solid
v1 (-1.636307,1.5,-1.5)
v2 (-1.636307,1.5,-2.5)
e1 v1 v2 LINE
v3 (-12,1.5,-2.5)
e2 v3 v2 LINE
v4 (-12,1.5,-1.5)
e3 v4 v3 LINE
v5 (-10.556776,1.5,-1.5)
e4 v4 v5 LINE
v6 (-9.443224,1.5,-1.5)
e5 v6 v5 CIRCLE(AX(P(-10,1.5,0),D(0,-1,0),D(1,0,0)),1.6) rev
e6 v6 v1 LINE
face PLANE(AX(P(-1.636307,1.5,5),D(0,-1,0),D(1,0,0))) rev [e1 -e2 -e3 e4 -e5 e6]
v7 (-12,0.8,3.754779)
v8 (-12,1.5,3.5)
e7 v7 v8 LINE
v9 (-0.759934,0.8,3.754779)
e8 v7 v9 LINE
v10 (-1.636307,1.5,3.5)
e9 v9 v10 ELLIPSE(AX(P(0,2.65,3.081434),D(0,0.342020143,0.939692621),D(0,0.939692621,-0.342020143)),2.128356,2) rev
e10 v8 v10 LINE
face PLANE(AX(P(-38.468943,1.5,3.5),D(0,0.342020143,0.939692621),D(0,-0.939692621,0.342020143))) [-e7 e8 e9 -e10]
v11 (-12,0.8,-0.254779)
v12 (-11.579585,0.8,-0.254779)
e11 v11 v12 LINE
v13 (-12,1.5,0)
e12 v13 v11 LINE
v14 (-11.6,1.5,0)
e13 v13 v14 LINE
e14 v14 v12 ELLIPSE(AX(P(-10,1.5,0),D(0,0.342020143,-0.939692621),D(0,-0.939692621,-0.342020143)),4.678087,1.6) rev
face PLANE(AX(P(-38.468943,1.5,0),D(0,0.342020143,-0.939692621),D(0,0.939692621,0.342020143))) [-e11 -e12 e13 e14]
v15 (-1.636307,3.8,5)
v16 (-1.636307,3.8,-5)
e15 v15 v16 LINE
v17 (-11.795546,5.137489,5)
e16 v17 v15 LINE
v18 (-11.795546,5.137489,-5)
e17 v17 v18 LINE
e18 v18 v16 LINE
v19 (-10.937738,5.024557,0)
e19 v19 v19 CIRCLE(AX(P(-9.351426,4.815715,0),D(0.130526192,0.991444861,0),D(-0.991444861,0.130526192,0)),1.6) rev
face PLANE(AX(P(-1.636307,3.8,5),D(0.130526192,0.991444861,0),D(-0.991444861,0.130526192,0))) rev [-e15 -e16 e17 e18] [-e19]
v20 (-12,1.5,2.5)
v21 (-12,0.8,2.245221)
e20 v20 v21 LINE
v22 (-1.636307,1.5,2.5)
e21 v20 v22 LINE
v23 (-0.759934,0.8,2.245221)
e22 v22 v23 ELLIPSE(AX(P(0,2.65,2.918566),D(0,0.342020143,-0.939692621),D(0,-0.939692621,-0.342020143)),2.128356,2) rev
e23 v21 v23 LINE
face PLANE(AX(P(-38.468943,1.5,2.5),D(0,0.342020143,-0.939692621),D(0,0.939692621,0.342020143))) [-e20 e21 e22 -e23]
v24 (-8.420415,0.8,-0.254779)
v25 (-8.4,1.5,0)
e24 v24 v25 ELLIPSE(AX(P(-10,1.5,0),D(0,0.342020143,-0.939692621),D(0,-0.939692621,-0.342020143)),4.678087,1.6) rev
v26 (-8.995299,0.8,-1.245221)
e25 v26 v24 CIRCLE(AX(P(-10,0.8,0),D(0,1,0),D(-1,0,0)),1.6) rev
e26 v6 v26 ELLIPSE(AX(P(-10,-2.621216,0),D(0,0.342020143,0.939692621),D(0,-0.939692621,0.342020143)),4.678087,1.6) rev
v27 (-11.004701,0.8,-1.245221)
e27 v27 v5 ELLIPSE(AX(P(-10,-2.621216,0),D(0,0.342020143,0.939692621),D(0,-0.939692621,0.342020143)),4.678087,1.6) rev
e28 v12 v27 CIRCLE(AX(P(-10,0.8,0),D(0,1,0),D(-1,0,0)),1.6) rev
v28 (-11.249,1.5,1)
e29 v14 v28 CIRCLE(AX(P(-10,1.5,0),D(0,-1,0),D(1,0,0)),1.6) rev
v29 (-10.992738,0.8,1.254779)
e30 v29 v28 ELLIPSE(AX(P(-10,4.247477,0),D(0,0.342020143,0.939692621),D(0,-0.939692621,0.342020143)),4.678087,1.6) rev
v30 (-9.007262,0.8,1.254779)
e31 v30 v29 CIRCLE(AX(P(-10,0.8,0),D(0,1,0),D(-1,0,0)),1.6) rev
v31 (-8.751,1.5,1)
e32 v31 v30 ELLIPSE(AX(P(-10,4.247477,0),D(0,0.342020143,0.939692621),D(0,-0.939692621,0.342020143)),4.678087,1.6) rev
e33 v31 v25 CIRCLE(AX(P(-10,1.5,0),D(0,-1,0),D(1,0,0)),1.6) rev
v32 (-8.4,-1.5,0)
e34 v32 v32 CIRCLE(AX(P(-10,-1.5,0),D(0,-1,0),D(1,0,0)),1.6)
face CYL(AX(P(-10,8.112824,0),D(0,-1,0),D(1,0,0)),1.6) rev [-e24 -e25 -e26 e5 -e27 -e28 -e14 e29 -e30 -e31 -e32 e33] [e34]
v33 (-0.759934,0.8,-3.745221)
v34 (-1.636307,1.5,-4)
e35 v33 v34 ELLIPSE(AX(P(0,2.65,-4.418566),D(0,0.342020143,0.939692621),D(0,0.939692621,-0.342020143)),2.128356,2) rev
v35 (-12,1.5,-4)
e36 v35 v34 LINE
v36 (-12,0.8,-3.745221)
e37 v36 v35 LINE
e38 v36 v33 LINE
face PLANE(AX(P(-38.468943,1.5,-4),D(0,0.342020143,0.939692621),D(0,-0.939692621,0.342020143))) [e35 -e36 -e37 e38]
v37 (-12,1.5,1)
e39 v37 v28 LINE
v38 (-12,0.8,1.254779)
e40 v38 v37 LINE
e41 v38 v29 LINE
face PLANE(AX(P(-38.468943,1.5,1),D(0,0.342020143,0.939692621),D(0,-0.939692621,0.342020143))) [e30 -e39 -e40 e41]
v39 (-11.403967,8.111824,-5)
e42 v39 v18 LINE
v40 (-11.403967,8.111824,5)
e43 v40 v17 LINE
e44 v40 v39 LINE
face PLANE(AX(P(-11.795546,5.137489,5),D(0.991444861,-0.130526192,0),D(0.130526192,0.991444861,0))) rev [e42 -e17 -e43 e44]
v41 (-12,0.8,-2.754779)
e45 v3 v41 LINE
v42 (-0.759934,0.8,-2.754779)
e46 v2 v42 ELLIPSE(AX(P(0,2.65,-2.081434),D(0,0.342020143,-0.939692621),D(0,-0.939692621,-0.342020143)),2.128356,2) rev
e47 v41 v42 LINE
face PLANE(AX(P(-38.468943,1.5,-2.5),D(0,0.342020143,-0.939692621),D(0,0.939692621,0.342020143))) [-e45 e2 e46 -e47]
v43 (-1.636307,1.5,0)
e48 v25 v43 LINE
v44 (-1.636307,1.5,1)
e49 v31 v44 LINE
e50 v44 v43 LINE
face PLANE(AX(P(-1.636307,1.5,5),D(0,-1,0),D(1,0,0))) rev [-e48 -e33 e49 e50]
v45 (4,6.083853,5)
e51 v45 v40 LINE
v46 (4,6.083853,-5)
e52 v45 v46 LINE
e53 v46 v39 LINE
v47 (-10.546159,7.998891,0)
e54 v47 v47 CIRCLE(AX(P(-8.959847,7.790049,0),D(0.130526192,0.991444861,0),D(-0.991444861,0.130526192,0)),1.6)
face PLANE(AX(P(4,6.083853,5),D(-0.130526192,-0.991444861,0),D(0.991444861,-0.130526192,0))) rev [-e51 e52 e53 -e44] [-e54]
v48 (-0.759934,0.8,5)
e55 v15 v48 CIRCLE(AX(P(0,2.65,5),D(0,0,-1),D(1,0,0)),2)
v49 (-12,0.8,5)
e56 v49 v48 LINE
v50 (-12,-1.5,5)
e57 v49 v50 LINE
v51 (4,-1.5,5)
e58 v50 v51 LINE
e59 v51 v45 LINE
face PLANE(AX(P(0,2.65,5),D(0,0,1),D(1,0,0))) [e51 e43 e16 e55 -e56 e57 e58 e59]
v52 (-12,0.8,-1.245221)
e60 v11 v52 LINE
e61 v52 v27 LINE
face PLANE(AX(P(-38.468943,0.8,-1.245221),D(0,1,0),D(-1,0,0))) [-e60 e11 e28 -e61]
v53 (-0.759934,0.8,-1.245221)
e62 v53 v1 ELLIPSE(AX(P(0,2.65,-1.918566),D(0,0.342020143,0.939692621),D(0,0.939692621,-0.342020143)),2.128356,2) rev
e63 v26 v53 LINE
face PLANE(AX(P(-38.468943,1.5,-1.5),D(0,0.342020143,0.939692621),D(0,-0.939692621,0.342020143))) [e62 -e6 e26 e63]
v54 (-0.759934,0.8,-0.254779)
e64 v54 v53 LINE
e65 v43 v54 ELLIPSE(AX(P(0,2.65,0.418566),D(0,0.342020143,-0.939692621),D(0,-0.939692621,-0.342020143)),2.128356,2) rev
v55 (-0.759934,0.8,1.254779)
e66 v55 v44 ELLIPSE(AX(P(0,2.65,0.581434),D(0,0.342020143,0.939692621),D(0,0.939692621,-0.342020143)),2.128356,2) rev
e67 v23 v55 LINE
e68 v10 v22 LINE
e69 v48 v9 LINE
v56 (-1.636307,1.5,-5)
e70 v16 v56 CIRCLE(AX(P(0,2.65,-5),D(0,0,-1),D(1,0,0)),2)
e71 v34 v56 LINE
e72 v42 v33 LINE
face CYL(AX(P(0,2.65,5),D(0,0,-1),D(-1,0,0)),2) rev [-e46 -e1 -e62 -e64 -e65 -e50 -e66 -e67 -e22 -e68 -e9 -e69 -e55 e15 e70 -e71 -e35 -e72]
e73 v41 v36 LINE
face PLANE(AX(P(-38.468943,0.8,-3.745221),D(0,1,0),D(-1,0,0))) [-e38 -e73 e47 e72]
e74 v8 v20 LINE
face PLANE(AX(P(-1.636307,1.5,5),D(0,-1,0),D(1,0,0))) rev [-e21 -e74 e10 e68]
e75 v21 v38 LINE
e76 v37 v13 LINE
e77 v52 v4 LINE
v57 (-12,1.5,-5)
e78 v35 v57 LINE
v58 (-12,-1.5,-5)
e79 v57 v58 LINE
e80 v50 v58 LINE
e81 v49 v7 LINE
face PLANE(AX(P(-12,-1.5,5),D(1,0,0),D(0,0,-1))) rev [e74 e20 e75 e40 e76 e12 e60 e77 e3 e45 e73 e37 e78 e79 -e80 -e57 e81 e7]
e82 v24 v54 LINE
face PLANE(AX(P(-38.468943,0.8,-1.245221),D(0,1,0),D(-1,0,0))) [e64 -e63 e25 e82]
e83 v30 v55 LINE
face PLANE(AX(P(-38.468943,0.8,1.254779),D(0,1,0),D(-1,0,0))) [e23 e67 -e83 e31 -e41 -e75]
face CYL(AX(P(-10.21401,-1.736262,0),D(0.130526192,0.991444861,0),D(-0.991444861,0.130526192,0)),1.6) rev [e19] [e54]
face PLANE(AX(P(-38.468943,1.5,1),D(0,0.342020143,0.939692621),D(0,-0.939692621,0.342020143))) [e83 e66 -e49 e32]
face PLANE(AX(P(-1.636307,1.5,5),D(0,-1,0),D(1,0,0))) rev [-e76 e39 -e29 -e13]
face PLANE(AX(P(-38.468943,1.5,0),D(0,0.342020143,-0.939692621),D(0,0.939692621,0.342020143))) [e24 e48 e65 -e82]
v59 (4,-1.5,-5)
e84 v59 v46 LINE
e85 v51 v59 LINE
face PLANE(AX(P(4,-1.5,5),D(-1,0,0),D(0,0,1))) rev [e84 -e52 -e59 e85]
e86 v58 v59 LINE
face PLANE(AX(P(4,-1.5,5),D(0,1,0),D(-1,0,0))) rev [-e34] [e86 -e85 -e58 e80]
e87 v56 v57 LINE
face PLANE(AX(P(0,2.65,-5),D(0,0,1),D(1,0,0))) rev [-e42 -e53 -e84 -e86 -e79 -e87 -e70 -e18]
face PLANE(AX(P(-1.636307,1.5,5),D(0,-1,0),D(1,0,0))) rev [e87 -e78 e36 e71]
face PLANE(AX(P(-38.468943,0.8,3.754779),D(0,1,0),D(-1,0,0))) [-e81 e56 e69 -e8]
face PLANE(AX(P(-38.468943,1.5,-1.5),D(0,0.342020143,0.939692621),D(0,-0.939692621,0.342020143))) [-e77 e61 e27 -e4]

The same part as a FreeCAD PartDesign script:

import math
import FreeCAD as App
import Part
import Sketcher

V = App.Vector
Q = App.Units.Quantity

doc = App.newDocument("Part")
body = doc.addObject("PartDesign::Body", "Body")

# Sketch on XY plane
sketch1 = body.newObject("Sketcher::SketchObject", "Sketch")
sketch1.AttachmentSupport = (doc.getObject("XY_Plane"), [""])
sketch1.MapMode = "FlatFace"
sketch1.addGeometry([
    Part.LineSegment(V(4, 6.083853, 0), V(-11.403967, 8.111824, 0)),  # 0
    Part.LineSegment(V(-11.403967, 8.111824, 0), V(-11.795546, 5.137489, 0)),  # 1
    Part.LineSegment(V(-11.795546, 5.137489, 0), V(-1.636307, 3.8, 0)),  # 2
    Part.ArcOfCircle(Part.Circle(V(0, 2.65, 0), V(0, 0, 1), 2), math.radians(-144.900368), math.radians(144.900368)),  # 3
    Part.LineSegment(V(-1.636307, 1.5, 0), V(-12, 1.5, 0)),  # 4
    Part.LineSegment(V(-12, 1.5, 0), V(-12, -1.5, 0)),  # 5
    Part.LineSegment(V(-12, -1.5, 0), V(4, -1.5, 0)),  # 6
    Part.LineSegment(V(4, -1.5, 0), V(4, 6.083853, 0)),  # 7
], False)
sketch1.addConstraint([
    Sketcher.Constraint("Coincident", 0, 2, 1, 1),
    Sketcher.Constraint("Coincident", 1, 2, 2, 1),
    Sketcher.Constraint("Coincident", 2, 2, 3, 2),
    Sketcher.Constraint("Coincident", 3, 1, 4, 1),
    Sketcher.Constraint("Coincident", 4, 2, 5, 1),
    Sketcher.Constraint("Coincident", 5, 2, 6, 1),
    Sketcher.Constraint("Coincident", 6, 2, 7, 1),
    Sketcher.Constraint("Coincident", 7, 2, 0, 1),
    Sketcher.Constraint("Horizontal", 4),
    Sketcher.Constraint("Vertical", 5),
    Sketcher.Constraint("Horizontal", 6),
    Sketcher.Constraint("Vertical", 7),
    Sketcher.Constraint("PointOnObject", 3, 3, -2),
    Sketcher.Constraint("Perpendicular", 0, 1),
    Sketcher.Constraint("Perpendicular", 1, 2),
    Sketcher.Constraint("Vertical", 2, 2, 3, 1),
    Sketcher.Constraint("Radius", 3, 2.0),
    Sketcher.Constraint("DistanceX", 6, 1, 6, 2, 16.0),
    Sketcher.Constraint("DistanceY", 5, 2, 5, 1, 3.0),
    Sketcher.Constraint("Distance", 1, 3.0),
    Sketcher.Constraint("DistanceX", 4, 2, -1, 1, 12.0),
    Sketcher.Constraint("Angle", 0, Q("172.5 deg")),
    Sketcher.Constraint("DistanceY", -1, 1, 2, 2, 3.8),
    Sketcher.Constraint("DistanceY", -1, 1, 3, 1, 1.5),
    Sketcher.Constraint("DistanceY", -1, 1, 1, 2, 5.137489),
])
pad1 = body.newObject("PartDesign::Pad", "Pad")
pad1.Profile = sketch1
pad1.Length = 10
pad1.Midplane = True

# Sketch on an angled plane
sketch2 = body.newObject("Sketcher::SketchObject", "Sketch001")
sketch2.Placement = App.Placement(V(0.855457, 6.49784, 0), App.Rotation(V(0.991444861, -0.130526192, 0), V(0, 0, -0.999999999), V(0.130526192, 0.991444861, 0), "ZXY"))
sketch2.addGeometry(Part.Circle(V(-9.9, 0, 0), V(0, 0, 1), 1.6), False)
sketch2.addConstraint([
    Sketcher.Constraint("PointOnObject", 0, 3, -1),
    Sketcher.Constraint("Diameter", 0, 3.2),
    Sketcher.Constraint("DistanceX", 0, 3, -1, 1, 9.9),
])
pocket1 = body.newObject("PartDesign::Pocket", "Pocket")
pocket1.Profile = sketch2
pocket1.Type = "UpToFirst"

# Sketch on XZ plane
sketch3 = body.newObject("Sketcher::SketchObject", "Sketch002")
sketch3.AttachmentSupport = (doc.getObject("XZ_Plane"), [""])
sketch3.MapMode = "FlatFace"
sketch3.AttachmentOffset = App.Placement(V(0, 0, 1.5), App.Rotation())
sketch3.addGeometry(Part.Circle(V(-10, 0, 0), V(0, 0, 1), 1.6), False)
sketch3.addConstraint([
    Sketcher.Constraint("PointOnObject", 0, 3, -1),
    Sketcher.Constraint("Diameter", 0, 3.2),
    Sketcher.Constraint("DistanceX", 0, 3, -1, 1, 10.0),
])
pocket2 = body.newObject("PartDesign::Pocket", "Pocket001")
pocket2.Profile = sketch3
pocket2.Type = "UpToFirst"

# Sketch on YZ plane
sketch4 = body.newObject("Sketcher::SketchObject", "Sketch003")
sketch4.AttachmentSupport = (doc.getObject("YZ_Plane"), [""])
sketch4.MapMode = "FlatFace"
sketch4.AttachmentOffset = App.Placement(V(0, 0, -12), App.Rotation())
sketch4.addGeometry([
    Part.LineSegment(V(1.5, -2.5, 0), V(1.5, -4, 0)),  # 0
    Part.LineSegment(V(1.5, -4, 0), V(0.8, -3.745221, 0)),  # 1
    Part.LineSegment(V(0.8, -3.745221, 0), V(0.8, -2.754779, 0)),  # 2
    Part.LineSegment(V(0.8, -2.754779, 0), V(1.5, -2.5, 0)),  # 3
    Part.LineSegment(V(1.5, 0, 0), V(1.5, -1.5, 0)),  # 4
    Part.LineSegment(V(1.5, -1.5, 0), V(0.8, -1.245221, 0)),  # 5
    Part.LineSegment(V(0.8, -1.245221, 0), V(0.8, -0.254779, 0)),  # 6
    Part.LineSegment(V(0.8, -0.254779, 0), V(1.5, 0, 0)),  # 7
    Part.LineSegment(V(0.8, 3.754779, 0), V(0.8, 5, 0)),  # 8
    Part.LineSegment(V(0.8, 5, 0), V(1.5, 5, 0)),  # 9
    Part.LineSegment(V(1.5, 5, 0), V(1.5, 3.5, 0)),  # 10
    Part.LineSegment(V(1.5, 3.5, 0), V(0.8, 3.754779, 0)),  # 11
    Part.LineSegment(V(1.5, 2.5, 0), V(1.5, 1, 0)),  # 12
    Part.LineSegment(V(1.5, 1, 0), V(0.8, 1.254779, 0)),  # 13
    Part.LineSegment(V(0.8, 1.254779, 0), V(0.8, 2.245221, 0)),  # 14
    Part.LineSegment(V(0.8, 2.245221, 0), V(1.5, 2.5, 0)),  # 15
], False)
sketch4.addConstraint([
    Sketcher.Constraint("Coincident", 0, 2, 1, 1),
    Sketcher.Constraint("Coincident", 1, 2, 2, 1),
    Sketcher.Constraint("Coincident", 2, 2, 3, 1),
    Sketcher.Constraint("Coincident", 3, 2, 0, 1),
    Sketcher.Constraint("Coincident", 4, 2, 5, 1),
    Sketcher.Constraint("Coincident", 5, 2, 6, 1),
    Sketcher.Constraint("Coincident", 6, 2, 7, 1),
    Sketcher.Constraint("Coincident", 7, 2, 4, 1),
    Sketcher.Constraint("Coincident", 8, 2, 9, 1),
    Sketcher.Constraint("Coincident", 9, 2, 10, 1),
    Sketcher.Constraint("Coincident", 10, 2, 11, 1),
    Sketcher.Constraint("Coincident", 11, 2, 8, 1),
    Sketcher.Constraint("Coincident", 12, 2, 13, 1),
    Sketcher.Constraint("Coincident", 13, 2, 14, 1),
    Sketcher.Constraint("Coincident", 14, 2, 15, 1),
    Sketcher.Constraint("Coincident", 15, 2, 12, 1),
    Sketcher.Constraint("Vertical", 0),
    Sketcher.Constraint("Vertical", 2),
    Sketcher.Constraint("Vertical", 4),
    Sketcher.Constraint("Vertical", 6),
    Sketcher.Constraint("Vertical", 8),
    Sketcher.Constraint("Horizontal", 9),
    Sketcher.Constraint("Vertical", 10),
    Sketcher.Constraint("Vertical", 12),
    Sketcher.Constraint("Vertical", 14),
    Sketcher.Constraint("Symmetric", 3, 2, 15, 2, -1),
    Sketcher.Constraint("PointOnObject", 7, 2, -1),
    Sketcher.Constraint("Parallel", 1, 5),
    Sketcher.Constraint("Parallel", 3, 7),
    Sketcher.Constraint("Parallel", 5, 11),
    Sketcher.Constraint("Parallel", 11, 13),
    Sketcher.Constraint("Parallel", 7, 15),
    Sketcher.Constraint("Vertical", 3, 2, 4, 2),
    Sketcher.Constraint("Vertical", 2, 2, 5, 2),
    Sketcher.Constraint("Vertical", 6, 2, 8, 2),
    Sketcher.Constraint("Vertical", 7, 2, 9, 2),
    Sketcher.Constraint("Vertical", 11, 2, 13, 2),
    Sketcher.Constraint("Equal", 0, 4),
    Sketcher.Constraint("Equal", 4, 10),
    Sketcher.Constraint("Equal", 10, 12),
    Sketcher.Constraint("Equal", 1, 3),
    Sketcher.Constraint("Angle", 1, Q("160 deg")),
    Sketcher.Constraint("DistanceX", 9, 1, 9, 2, 0.7),
    Sketcher.Constraint("DistanceY", 0, 2, 0, 1, 1.5),
    Sketcher.Constraint("DistanceY", 0, 2, -1, 1, 4.0),
    Sketcher.Constraint("DistanceY", -1, 1, 8, 2, 5.0),
    Sketcher.Constraint("DistanceX", -1, 1, 0, 2, 1.5),
])
pocket3 = body.newObject("PartDesign::Pocket", "Pocket002")
pocket3.Profile = sketch4
pocket3.Type = "TwoLengths"
pocket3.Length = 1
pocket3.Length2 = 12

doc.recompute()
